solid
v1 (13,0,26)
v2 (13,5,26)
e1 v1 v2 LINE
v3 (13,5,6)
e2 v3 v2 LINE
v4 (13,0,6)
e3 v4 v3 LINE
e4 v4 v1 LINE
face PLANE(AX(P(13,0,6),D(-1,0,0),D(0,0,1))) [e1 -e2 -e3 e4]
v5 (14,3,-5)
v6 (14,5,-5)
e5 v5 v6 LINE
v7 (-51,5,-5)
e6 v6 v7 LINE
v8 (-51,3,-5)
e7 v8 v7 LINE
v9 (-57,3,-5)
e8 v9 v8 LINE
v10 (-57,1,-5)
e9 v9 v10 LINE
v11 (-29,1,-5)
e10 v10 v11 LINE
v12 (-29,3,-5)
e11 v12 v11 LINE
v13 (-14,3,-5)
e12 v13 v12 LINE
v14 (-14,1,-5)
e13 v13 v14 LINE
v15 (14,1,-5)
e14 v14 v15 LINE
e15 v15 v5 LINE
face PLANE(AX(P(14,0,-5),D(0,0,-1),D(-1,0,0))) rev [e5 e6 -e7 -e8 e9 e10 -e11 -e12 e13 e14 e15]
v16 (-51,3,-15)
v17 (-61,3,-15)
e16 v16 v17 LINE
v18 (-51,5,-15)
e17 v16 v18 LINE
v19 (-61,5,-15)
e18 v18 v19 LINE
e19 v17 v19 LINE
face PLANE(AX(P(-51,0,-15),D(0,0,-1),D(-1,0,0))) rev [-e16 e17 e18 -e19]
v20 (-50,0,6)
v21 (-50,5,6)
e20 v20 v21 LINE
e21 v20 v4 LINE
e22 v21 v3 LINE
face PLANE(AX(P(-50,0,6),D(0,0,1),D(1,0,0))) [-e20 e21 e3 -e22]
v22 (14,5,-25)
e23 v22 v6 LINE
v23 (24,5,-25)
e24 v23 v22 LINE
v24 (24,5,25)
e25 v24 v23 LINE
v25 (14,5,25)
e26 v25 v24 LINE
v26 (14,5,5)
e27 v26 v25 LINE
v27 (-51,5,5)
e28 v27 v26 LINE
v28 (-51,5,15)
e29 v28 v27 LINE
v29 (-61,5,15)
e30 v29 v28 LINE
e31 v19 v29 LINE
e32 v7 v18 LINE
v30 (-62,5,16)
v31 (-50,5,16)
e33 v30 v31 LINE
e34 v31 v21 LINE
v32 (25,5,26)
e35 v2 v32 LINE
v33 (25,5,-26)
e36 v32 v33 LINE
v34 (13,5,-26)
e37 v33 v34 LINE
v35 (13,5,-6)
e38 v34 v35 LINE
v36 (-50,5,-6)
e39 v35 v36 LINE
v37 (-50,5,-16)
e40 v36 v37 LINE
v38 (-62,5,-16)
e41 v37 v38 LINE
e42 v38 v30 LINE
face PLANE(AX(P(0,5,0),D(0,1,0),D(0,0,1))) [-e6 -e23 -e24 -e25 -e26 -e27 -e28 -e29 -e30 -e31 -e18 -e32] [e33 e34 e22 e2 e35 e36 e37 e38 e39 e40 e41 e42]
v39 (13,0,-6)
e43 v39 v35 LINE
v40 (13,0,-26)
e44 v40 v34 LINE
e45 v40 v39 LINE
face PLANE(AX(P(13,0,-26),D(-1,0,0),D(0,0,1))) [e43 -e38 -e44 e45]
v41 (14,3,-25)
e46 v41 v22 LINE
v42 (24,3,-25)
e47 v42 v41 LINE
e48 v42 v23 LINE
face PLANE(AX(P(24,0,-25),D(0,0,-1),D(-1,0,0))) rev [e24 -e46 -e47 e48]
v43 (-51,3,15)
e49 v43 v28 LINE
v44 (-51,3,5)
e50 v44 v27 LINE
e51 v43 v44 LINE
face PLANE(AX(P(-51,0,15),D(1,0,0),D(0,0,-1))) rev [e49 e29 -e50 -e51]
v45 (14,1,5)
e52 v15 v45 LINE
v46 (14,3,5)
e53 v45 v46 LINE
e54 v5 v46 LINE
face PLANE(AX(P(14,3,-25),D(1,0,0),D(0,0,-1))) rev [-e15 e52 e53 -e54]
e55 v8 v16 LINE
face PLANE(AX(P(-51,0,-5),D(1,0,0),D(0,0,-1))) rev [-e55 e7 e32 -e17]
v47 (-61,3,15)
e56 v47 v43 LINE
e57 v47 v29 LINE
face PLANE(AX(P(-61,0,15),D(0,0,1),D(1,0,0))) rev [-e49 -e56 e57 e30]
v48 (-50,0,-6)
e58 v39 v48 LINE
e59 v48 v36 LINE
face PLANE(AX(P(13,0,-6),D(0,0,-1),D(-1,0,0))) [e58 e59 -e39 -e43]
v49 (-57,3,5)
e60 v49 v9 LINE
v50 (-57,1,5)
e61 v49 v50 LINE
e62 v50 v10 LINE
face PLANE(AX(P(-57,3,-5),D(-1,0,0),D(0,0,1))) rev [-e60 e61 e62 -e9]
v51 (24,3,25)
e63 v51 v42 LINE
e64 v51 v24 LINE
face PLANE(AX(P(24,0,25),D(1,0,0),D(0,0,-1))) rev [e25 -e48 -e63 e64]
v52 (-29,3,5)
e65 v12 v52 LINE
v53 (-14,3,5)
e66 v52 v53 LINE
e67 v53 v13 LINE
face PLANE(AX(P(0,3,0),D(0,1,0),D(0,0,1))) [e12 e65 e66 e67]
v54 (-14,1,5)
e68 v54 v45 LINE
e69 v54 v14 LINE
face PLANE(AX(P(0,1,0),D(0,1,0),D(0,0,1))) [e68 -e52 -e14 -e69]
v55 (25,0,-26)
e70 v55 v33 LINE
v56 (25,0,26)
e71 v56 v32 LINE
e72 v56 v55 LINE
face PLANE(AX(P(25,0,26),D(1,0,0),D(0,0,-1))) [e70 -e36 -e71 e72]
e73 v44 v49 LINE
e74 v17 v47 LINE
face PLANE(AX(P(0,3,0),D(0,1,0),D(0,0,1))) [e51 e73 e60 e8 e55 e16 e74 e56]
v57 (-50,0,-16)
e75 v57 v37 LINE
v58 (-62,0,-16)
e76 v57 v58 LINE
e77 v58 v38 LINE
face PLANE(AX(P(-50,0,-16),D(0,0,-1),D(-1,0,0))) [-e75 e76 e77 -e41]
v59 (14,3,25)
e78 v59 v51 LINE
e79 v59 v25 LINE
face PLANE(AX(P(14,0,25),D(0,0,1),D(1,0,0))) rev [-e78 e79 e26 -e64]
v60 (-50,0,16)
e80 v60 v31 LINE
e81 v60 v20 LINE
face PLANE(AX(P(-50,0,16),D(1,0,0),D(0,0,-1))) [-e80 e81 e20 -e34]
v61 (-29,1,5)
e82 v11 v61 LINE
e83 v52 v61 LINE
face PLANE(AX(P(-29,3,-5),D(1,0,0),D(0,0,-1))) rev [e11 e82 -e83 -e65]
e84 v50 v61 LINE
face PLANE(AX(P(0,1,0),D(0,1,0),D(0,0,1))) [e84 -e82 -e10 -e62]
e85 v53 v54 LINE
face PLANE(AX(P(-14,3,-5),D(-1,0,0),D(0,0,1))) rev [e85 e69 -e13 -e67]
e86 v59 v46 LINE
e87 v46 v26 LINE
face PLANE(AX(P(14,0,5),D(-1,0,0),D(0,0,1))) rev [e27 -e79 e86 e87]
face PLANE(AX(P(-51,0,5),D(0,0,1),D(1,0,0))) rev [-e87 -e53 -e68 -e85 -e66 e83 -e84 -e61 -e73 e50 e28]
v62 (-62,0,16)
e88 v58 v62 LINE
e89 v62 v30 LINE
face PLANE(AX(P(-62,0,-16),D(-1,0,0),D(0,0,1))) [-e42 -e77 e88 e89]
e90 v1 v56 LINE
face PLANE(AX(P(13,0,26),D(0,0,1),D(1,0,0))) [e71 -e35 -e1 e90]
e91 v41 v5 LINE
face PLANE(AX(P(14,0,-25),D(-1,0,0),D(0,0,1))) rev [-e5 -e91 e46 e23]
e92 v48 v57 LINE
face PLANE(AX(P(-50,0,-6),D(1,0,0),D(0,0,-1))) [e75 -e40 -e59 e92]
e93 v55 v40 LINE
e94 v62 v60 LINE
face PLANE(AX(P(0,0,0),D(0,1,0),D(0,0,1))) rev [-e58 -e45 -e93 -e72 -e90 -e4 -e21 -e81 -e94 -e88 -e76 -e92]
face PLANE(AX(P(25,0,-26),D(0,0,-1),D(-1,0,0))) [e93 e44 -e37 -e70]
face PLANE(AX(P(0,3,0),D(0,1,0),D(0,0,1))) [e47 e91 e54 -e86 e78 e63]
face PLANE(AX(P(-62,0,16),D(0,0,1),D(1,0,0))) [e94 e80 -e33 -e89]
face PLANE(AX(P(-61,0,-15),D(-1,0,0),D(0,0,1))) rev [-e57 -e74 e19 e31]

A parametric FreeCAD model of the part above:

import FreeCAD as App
import Part
import Sketcher

V = App.Vector

doc = App.newDocument("Part")
body = doc.addObject("PartDesign::Body", "Body")

# Sketch on XZ plane
sketch1 = body.newObject("Sketcher::SketchObject", "Sketch")
sketch1.AttachmentSupport = (doc.getObject("XZ_Plane"), [""])
sketch1.MapMode = "FlatFace"
sketch1.addGeometry([
    Part.LineSegment(V(14, -5, 0), V(-51, -5, 0)),  # 0
    Part.LineSegment(V(-51, -5, 0), V(-51, -15, 0)),  # 1
    Part.LineSegment(V(-51, -15, 0), V(-61, -15, 0)),  # 2
    Part.LineSegment(V(-61, -15, 0), V(-61, 15, 0)),  # 3
    Part.LineSegment(V(-61, 15, 0), V(-51, 15, 0)),  # 4
    Part.LineSegment(V(-51, 15, 0), V(-51, 5, 0)),  # 5
    Part.LineSegment(V(-51, 5, 0), V(14, 5, 0)),  # 6
    Part.LineSegment(V(14, 5, 0), V(14, 25, 0)),  # 7
    Part.LineSegment(V(14, 25, 0), V(24, 25, 0)),  # 8
    Part.LineSegment(V(24, 25, 0), V(24, -25, 0)),  # 9
    Part.LineSegment(V(24, -25, 0), V(14, -25, 0)),  # 10
    Part.LineSegment(V(14, -25, 0), V(14, -5, 0)),  # 11
], False)
sketch1.addConstraint([
    Sketcher.Constraint("Coincident", 0, 2, 1, 1),
    Sketcher.Constraint("Coincident", 1, 2, 2, 1),
    Sketcher.Constraint("Coincident", 2, 2, 3, 1),
    Sketcher.Constraint("Coincident", 3, 2, 4, 1),
    Sketcher.Constraint("Coincident", 4, 2, 5, 1),
    Sketcher.Constraint("Coincident", 5, 2, 6, 1),
    Sketcher.Constraint("Coincident", 6, 2, 7, 1),
    Sketcher.Constraint("Coincident", 7, 2, 8, 1),
    Sketcher.Constraint("Coincident", 8, 2, 9, 1),
    Sketcher.Constraint("Coincident", 9, 2, 10, 1),
    Sketcher.Constraint("Coincident", 10, 2, 11, 1),
    Sketcher.Constraint("Coincident", 11, 2, 0, 1),
    Sketcher.Constraint("Horizontal", 0),
    Sketcher.Constraint("Vertical", 1),
    Sketcher.Constraint("Horizontal", 2),
    Sketcher.Constraint("Vertical", 3),
    Sketcher.Constraint("Horizontal", 4),
    Sketcher.Constraint("Vertical", 5),
    Sketcher.Constraint("Horizontal", 6),
    Sketcher.Constraint("Vertical", 7),
    Sketcher.Constraint("Horizontal", 8),
    Sketcher.Constraint("Vertical", 9),
    Sketcher.Constraint("Horizontal", 10),
    Sketcher.Constraint("Vertical", 11),
    Sketcher.Constraint("Symmetric", 1, 2, 4, 2, -1),
    Sketcher.Constraint("Symmetric", 7, 2, 10, 2, -1),
    Sketcher.Constraint("Equal", 4, 8),
    Sketcher.Constraint("Equal", 10, 1),
    Sketcher.Constraint("Equal", 1, 5),
    Sketcher.Constraint("DistanceX", 0, 2, 0, 1, 65.0),
    Sketcher.Constraint("DistanceX", 2, 2, 2, 1, 10.0),
    Sketcher.Constraint("DistanceY", 3, 1, 3, 2, 30.0),
    Sketcher.Constraint("DistanceY", 7, 1, 7, 2, 20.0),
    Sketcher.Constraint("DistanceX", 0, 2, -1, 1, 51.0),
])
pad1 = body.newObject("PartDesign::Pad", "Pad")
pad1.Profile = sketch1
pad1.Length = 1
pad1.Reversed = True

# Sketch on XZ plane
sketch2 = body.newObject("Sketcher::SketchObject", "Sketch001")
sketch2.AttachmentSupport = (doc.getObject("XZ_Plane"), [""])
sketch2.MapMode = "FlatFace"
sketch2.AttachmentOffset = App.Placement(V(0, 0, -1), App.Rotation())
sketch2.addGeometry([
    Part.LineSegment(V(-50, 16, 0), V(-50, 6, 0)),  # 0
    Part.LineSegment(V(-50, 6, 0), V(13, 6, 0)),  # 1
    Part.LineSegment(V(13, 6, 0), V(13, 26, 0)),  # 2
    Part.LineSegment(V(13, 26, 0), V(25, 26, 0)),  # 3
    Part.LineSegment(V(25, 26, 0), V(25, -26, 0)),  # 4
    Part.LineSegment(V(25, -26, 0), V(13, -26, 0)),  # 5
    Part.LineSegment(V(13, -26, 0), V(13, -6, 0)),  # 6
    Part.LineSegment(V(13, -6, 0), V(-50, -6, 0)),  # 7
    Part.LineSegment(V(-50, -6, 0), V(-50, -16, 0)),  # 8
    Part.LineSegment(V(-50, -16, 0), V(-62, -16, 0)),  # 9
    Part.LineSegment(V(-62, -16, 0), V(-62, 16, 0)),  # 10
    Part.LineSegment(V(-62, 16, 0), V(-50, 16, 0)),  # 11
    Part.LineSegment(V(-51, 5, 0), V(-51, 15, 0)),  # 12
    Part.LineSegment(V(-51, 15, 0), V(-61, 15, 0)),  # 13
    Part.LineSegment(V(-61, 15, 0), V(-61, -15, 0)),  # 14
    Part.LineSegment(V(-61, -15, 0), V(-51, -15, 0)),  # 15
    Part.LineSegment(V(-51, -15, 0), V(-51, -5, 0)),  # 16
    Part.LineSegment(V(-51, -5, 0), V(14, -5, 0)),  # 17
    Part.LineSegment(V(14, -5, 0), V(14, -25, 0)),  # 18
    Part.LineSegment(V(14, -25, 0), V(24, -25, 0)),  # 19
    Part.LineSegment(V(24, -25, 0), V(24, 25, 0)),  # 20
    Part.LineSegment(V(24, 25, 0), V(14, 25, 0)),  # 21
    Part.LineSegment(V(14, 25, 0), V(14, 5, 0)),  # 22
    Part.LineSegment(V(14, 5, 0), V(-51, 5, 0)),  # 23
], False)
sketch2.addConstraint([
    Sketcher.Constraint("Coincident", 0, 2, 1, 1),
    Sketcher.Constraint("Coincident", 1, 2, 2, 1),
    Sketcher.Constraint("Coincident", 2, 2, 3, 1),
    Sketcher.Constraint("Coincident", 3, 2, 4, 1),
    Sketcher.Constraint("Coincident", 4, 2, 5, 1),
    Sketcher.Constraint("Coincident", 5, 2, 6, 1),
    Sketcher.Constraint("Coincident", 6, 2, 7, 1),
    Sketcher.Constraint("Coincident", 7, 2, 8, 1),
    Sketcher.Constraint("Coincident", 8, 2, 9, 1),
    Sketcher.Constraint("Coincident", 9, 2, 10, 1),
    Sketcher.Constraint("Coincident", 10, 2, 11, 1),
    Sketcher.Constraint("Coincident", 11, 2, 0, 1),
    Sketcher.Constraint("Coincident", 12, 2, 13, 1),
    Sketcher.Constraint("Coincident", 13, 2, 14, 1),
    Sketcher.Constraint("Coincident", 14, 2, 15, 1),
    Sketcher.Constraint("Coincident", 15, 2, 16, 1),
    Sketcher.Constraint("Coincident", 16, 2, 17, 1),
    Sketcher.Constraint("Coincident", 17, 2, 18, 1),
    Sketcher.Constraint("Coincident", 18, 2, 19, 1),
    Sketcher.Constraint("Coincident", 19, 2, 20, 1),
    Sketcher.Constraint("Coincident", 20, 2, 21, 1),
    Sketcher.Constraint("Coincident", 21, 2, 22, 1),
    Sketcher.Constraint("Coincident", 22, 2, 23, 1),
    Sketcher.Constraint("Coincident", 23, 2, 12, 1),
    Sketcher.Constraint("Vertical", 0),
    Sketcher.Constraint("Horizontal", 1),
    Sketcher.Constraint("Vertical", 2),
    Sketcher.Constraint("Horizontal", 3),
    Sketcher.Constraint("Vertical", 4),
    Sketcher.Constraint("Horizontal", 5),
    Sketcher.Constraint("Vertical", 6),
    Sketcher.Constraint("Horizontal", 7),
    Sketcher.Constraint("Vertical", 8),
    Sketcher.Constraint("Horizontal", 9),
    Sketcher.Constraint("Vertical", 10),
    Sketcher.Constraint("Horizontal", 11),
    Sketcher.Constraint("Vertical", 12),
    Sketcher.Constraint("Horizontal", 13),
    Sketcher.Constraint("Vertical", 14),
    Sketcher.Constraint("Horizontal", 15),
    Sketcher.Constraint("Vertical", 16),
    Sketcher.Constraint("Horizontal", 17),
    Sketcher.Constraint("Vertical", 18),
    Sketcher.Constraint("Horizontal", 19),
    Sketcher.Constraint("Vertical", 20),
    Sketcher.Constraint("Horizontal", 21),
    Sketcher.Constraint("Vertical", 22),
    Sketcher.Constraint("Horizontal", 23),
    Sketcher.Constraint("Symmetric", 2, 2, 5, 2, -1),
    Sketcher.Constraint("Symmetric", 0, 2, 7, 2, -1),
    Sketcher.Constraint("Symmetric", 12, 2, 15, 2, -1),
    Sketcher.Constraint("Symmetric", 18, 2, 21, 2, -1),
    Sketcher.Constraint("Equal", 5, 9),
    Sketcher.Constraint("Equal", 15, 19),
    Sketcher.Constraint("Equal", 21, 0),
    Sketcher.Constraint("Equal", 0, 8),
    Sketcher.Constraint("Equal", 8, 12),
    Sketcher.Constraint("Equal", 12, 16),
    Sketcher.Constraint("Equal", 6, 18),
    Sketcher.Constraint("DistanceX", 1, 1, 1, 2, 63.0),
    Sketcher.Constraint("DistanceX", 3, 1, 3, 2, 12.0),
    Sketcher.Constraint("DistanceX", 13, 2, 13, 1, 10.0),
    Sketcher.Constraint("DistanceX", 17, 1, 17, 2, 65.0),
    Sketcher.Constraint("DistanceY", 2, 1, 2, 2, 20.0),
    Sketcher.Constraint("DistanceY", 4, 2, 4, 1, 52.0),
    Sketcher.Constraint("DistanceY", 14, 2, 14, 1, 30.0),
    Sketcher.Constraint("DistanceX", 0, 2, -1, 1, 50.0),
    Sketcher.Constraint("DistanceX", 12, 2, -1, 1, 51.0),
])
pad2 = body.newObject("PartDesign::Pad", "Pad001")
pad2.Profile = sketch2
pad2.Type = "TwoLengths"
pad2.Length = 4
pad2.Length2 = 1
pad2.Reversed = True

# Sketch on XZ plane
sketch3 = body.newObject("Sketcher::SketchObject", "Sketch002")
sketch3.AttachmentSupport = (doc.getObject("XZ_Plane"), [""])
sketch3.MapMode = "FlatFace"
sketch3.AttachmentOffset = App.Placement(V(0, 0, -1), App.Rotation())
sketch3.addGeometry([
    Part.LineSegment(V(-57, 5, 0), V(-57, -5, 0)),  # 0
    Part.LineSegment(V(-57, -5, 0), V(-51, -5, 0)),  # 1
    Part.LineSegment(V(-51, -5, 0), V(-51, -15, 0)),  # 2
    Part.LineSegment(V(-51, -15, 0), V(-61, -15, 0)),  # 3
    Part.LineSegment(V(-61, -15, 0), V(-61, 15, 0)),  # 4
    Part.LineSegment(V(-61, 15, 0), V(-51, 15, 0)),  # 5
    Part.LineSegment(V(-51, 15, 0), V(-51, 5, 0)),  # 6
    Part.LineSegment(V(-51, 5, 0), V(-57, 5, 0)),  # 7
    Part.LineSegment(V(-29, -5, 0), V(-29, 5, 0)),  # 8
    Part.LineSegment(V(-29, 5, 0), V(-14, 5, 0)),  # 9
    Part.LineSegment(V(-14, 5, 0), V(-14, -5, 0)),  # 10
    Part.LineSegment(V(-14, -5, 0), V(-29, -5, 0)),  # 11
    Part.LineSegment(V(14, -25, 0), V(14, 25, 0)),  # 12
    Part.LineSegment(V(14, 25, 0), V(24, 25, 0)),  # 13
    Part.LineSegment(V(24, 25, 0), V(24, -25, 0)),  # 14
    Part.LineSegment(V(24, -25, 0), V(14, -25, 0)),  # 15
], False)
sketch3.addConstraint([
    Sketcher.Constraint("Coincident", 0, 2, 1, 1),
    Sketcher.Constraint("Coincident", 1, 2, 2, 1),
    Sketcher.Constraint("Coincident", 2, 2, 3, 1),
    Sketcher.Constraint("Coincident", 3, 2, 4, 1),
    Sketcher.Constraint("Coincident", 4, 2, 5, 1),
    Sketcher.Constraint("Coincident", 5, 2, 6, 1),
    Sketcher.Constraint("Coincident", 6, 2, 7, 1),
    Sketcher.Constraint("Coincident", 7, 2, 0, 1),
    Sketcher.Constraint("Coincident", 8, 2, 9, 1),
    Sketcher.Constraint("Coincident", 9, 2, 10, 1),
    Sketcher.Constraint("Coincident", 10, 2, 11, 1),
    Sketcher.Constraint("Coincident", 11, 2, 8, 1),
    Sketcher.Constraint("Coincident", 12, 2, 13, 1),
    Sketcher.Constraint("Coincident", 13, 2, 14, 1),
    Sketcher.Constraint("Coincident", 14, 2, 15, 1),
    Sketcher.Constraint("Coincident", 15, 2, 12, 1),
    Sketcher.Constraint("Vertical", 0),
    Sketcher.Constraint("Horizontal", 1),
    Sketcher.Constraint("Vertical", 2),
    Sketcher.Constraint("Horizontal", 3),
    Sketcher.Constraint("Vertical", 4),
    Sketcher.Constraint("Horizontal", 5),
    Sketcher.Constraint("Vertical", 6),
    Sketcher.Constraint("Horizontal", 7),
    Sketcher.Constraint("Vertical", 8),
    Sketcher.Constraint("Horizontal", 9),
    Sketcher.Constraint("Vertical", 10),
    Sketcher.Constraint("Horizontal", 11),
    Sketcher.Constraint("Vertical", 12),
    Sketcher.Constraint("Horizontal", 13),
    Sketcher.Constraint("Vertical", 14),
    Sketcher.Constraint("Horizontal", 15),
    Sketcher.Constraint("Symmetric", 2, 2, 5, 2, -1),
    Sketcher.Constraint("Horizontal", 7, 2, 8, 2),
    Sketcher.Constraint("Horizontal", 1, 2, 10, 2),
    Sketcher.Constraint("Equal", 5, 13),
    Sketcher.Constraint("Equal", 15, 0),
    Sketcher.Constraint("Equal", 0, 2),
    Sketcher.Constraint("Equal", 2, 6),
    Sketcher.Constraint("DistanceX", 1, 1, 1, 2, 6.0),
    Sketcher.Constraint("DistanceX", 3, 2, 3, 1, 10.0),
    Sketcher.Constraint("DistanceX", 9, 1, 9, 2, 15.0),
    Sketcher.Constraint("DistanceY", 12, 1, 12, 2, 50.0),
    Sketcher.Constraint("DistanceX", 0, 2, -1, 1, 57.0),
    Sketcher.Constraint("DistanceX", 8, 2, -1, 1, 29.0),
    Sketcher.Constraint("DistanceX", -1, 1, 12, 2, 14.0),
    Sketcher.Constraint("DistanceY", -1, 1, 12, 2, 25.0),
])
pad3 = body.newObject("PartDesign::Pad", "Pad002")
pad3.Profile = sketch3
pad3.Length = 2
pad3.Reversed = True

doc.recompute()
